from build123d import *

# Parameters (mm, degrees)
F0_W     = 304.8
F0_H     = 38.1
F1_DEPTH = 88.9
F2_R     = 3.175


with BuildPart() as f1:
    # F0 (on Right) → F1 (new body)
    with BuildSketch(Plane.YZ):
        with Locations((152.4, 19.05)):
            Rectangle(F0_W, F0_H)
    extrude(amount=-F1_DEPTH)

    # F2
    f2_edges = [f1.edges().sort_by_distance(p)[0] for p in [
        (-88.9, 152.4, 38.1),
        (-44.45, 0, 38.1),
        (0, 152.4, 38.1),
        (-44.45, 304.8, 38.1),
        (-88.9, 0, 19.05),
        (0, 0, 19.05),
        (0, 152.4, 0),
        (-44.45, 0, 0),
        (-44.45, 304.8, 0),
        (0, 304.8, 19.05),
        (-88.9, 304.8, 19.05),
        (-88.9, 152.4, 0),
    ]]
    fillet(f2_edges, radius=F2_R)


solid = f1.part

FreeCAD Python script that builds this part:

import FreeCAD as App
import Part
import Sketcher
from FreeCAD import Vector
Q = App.Units.Quantity


def add_polygon(sketch, points):
    """Adds a closed chain of lines whose ends are joined by coincident constraints."""
    first, n = sketch.GeometryCount, len(points)
    for a, b in zip(points, points[1:] + points[:1]):
        sketch.addGeometry(Part.LineSegment(App.Vector(*a, 0), App.Vector(*b, 0)), False)
    for i in range(n):
        sketch.addConstraint(Sketcher.Constraint("Coincident", first + i, 2, first + (i + 1) % n, 1))

doc = App.newDocument("Part")
params = doc.addObject("Spreadsheet::Sheet", "Params")
for row, (alias, value) in enumerate([
    ("sketch1_width", "12 in"),
    ("sketch1_height", "1.5 in"),
    ("pad1_length", "3.5 in"),
    ("fillet_radius", "0.125 in"),
], start=1):
    params.set(f"A{row}", alias)
    params.set(f"B{row}", "=" + value)
    params.setAlias(f"B{row}", alias)

body = doc.addObject("PartDesign::Body", "Body")

# Sketch on YZ plane
sketch1 = body.newObject("Sketcher::SketchObject", "Sketch")
sketch1.AttachmentSupport = (doc.getObject("YZ_Plane"), [""])
sketch1.MapMode = "FlatFace"
add_polygon(sketch1, [(0, 38), (0, 0), (305, 0), (305, 38)])  # lines 0-3
sketch1.addConstraint([
    Sketcher.Constraint("Vertical", 0),
    Sketcher.Constraint("Horizontal", 1),
    Sketcher.Constraint("Vertical", 2),
    Sketcher.Constraint("Horizontal", 3),
    Sketcher.Constraint("Coincident", 0, 2, -1, 1),
    Sketcher.Constraint("DistanceX", 1, 1, 1, 2, Q("12 in")),
    Sketcher.Constraint("DistanceY", 0, 2, 0, 1, Q("1.5 in")),
])
sketch1.setExpression("Constraints[9]", "Params.sketch1_width")
sketch1.setExpression("Constraints[10]", "Params.sketch1_height")
pad1 = body.newObject("PartDesign::Pad", "Pad")
pad1.Profile = sketch1
pad1.setExpression("Length", "Params.pad1_length")
pad1.Reversed = True
doc.recompute()

fillet = body.newObject("PartDesign::Fillet", "Fillet")
fillet.Base = (pad1, ["Edge1"])
fillet.UseAllEdges = True
fillet.setExpression("Radius", "Params.fillet_radius")

doc.recompute()
